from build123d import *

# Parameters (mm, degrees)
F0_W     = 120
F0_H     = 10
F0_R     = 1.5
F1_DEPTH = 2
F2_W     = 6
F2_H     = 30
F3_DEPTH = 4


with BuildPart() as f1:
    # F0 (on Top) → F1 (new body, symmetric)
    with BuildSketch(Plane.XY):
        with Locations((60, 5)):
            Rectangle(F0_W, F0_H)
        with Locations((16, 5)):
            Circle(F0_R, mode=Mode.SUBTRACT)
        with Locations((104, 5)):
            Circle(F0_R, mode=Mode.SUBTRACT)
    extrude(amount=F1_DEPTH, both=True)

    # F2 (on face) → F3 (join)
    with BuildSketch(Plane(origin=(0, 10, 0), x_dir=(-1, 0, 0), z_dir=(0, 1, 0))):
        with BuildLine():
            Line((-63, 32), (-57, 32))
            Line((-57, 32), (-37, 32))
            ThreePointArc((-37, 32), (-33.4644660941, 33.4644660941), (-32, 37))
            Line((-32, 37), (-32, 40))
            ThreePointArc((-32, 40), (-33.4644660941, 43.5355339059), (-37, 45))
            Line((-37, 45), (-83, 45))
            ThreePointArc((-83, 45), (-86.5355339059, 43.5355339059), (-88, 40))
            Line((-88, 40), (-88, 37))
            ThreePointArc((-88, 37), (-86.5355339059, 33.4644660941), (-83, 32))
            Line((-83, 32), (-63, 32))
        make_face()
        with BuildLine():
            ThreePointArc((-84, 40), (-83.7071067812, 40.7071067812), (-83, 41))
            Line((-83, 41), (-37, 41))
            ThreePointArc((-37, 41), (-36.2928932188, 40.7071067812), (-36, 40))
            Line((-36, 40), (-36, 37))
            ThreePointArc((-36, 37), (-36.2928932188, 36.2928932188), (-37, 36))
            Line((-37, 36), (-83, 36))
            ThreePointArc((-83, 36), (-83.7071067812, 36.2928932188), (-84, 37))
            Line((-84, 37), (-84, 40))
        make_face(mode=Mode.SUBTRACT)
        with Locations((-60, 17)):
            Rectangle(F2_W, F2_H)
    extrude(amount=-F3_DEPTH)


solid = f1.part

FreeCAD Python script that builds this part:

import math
import FreeCAD as App
import Part
import Sketcher

V = App.Vector

doc = App.newDocument("Part")
body = doc.addObject("PartDesign::Body", "Body")

# Sketch on XY plane
sketch1 = body.newObject("Sketcher::SketchObject", "Sketch")
sketch1.AttachmentSupport = (doc.getObject("XY_Plane"), [""])
sketch1.MapMode = "FlatFace"
sketch1.addGeometry([
    Part.LineSegment(V(0, 10, 0), V(0, 0, 0)),  # 0
    Part.LineSegment(V(0, 0, 0), V(120, 0, 0)),  # 1
    Part.LineSegment(V(120, 0, 0), V(120, 10, 0)),  # 2
    Part.LineSegment(V(120, 10, 0), V(0, 10, 0)),  # 3
    Part.Circle(V(16, 5, 0), V(0, 0, 1), 1.5),  # 4
    Part.Circle(V(104, 5, 0), V(0, 0, 1), 1.5),  # 5
], False)
sketch1.addConstraint([
    Sketcher.Constraint("Coincident", 0, 2, 1, 1),
    Sketcher.Constraint("Coincident", 1, 2, 2, 1),
    Sketcher.Constraint("Coincident", 2, 2, 3, 1),
    Sketcher.Constraint("Coincident", 3, 2, 0, 1),
    Sketcher.Constraint("Vertical", 0),
    Sketcher.Constraint("Horizontal", 1),
    Sketcher.Constraint("Vertical", 2),
    Sketcher.Constraint("Horizontal", 3),
    Sketcher.Constraint("Coincident", 0, 2, -1, 1),
    Sketcher.Constraint("Equal", 4, 5),
    Sketcher.Constraint("Horizontal", 4, 3, 5, 3),
    Sketcher.Constraint("Diameter", 4, 3.0),
    Sketcher.Constraint("DistanceX", 1, 1, 1, 2, 120.0),
    Sketcher.Constraint("DistanceY", 0, 2, 0, 1, 10.0),
    Sketcher.Constraint("DistanceX", -1, 1, 4, 3, 16.0),
    Sketcher.Constraint("DistanceY", -1, 1, 4, 3, 5.0),
    Sketcher.Constraint("DistanceX", -1, 1, 5, 3, 104.0),
])
pad1 = body.newObject("PartDesign::Pad", "Pad")
pad1.Profile = sketch1
pad1.Length = 4
pad1.Midplane = True

# Sketch on XZ plane
sketch2 = body.newObject("Sketcher::SketchObject", "Sketch001")
sketch2.AttachmentSupport = (doc.getObject("XZ_Plane"), [""])
sketch2.MapMode = "FlatFace"
sketch2.AttachmentOffset = App.Placement(V(0, 0, -10), App.Rotation())
sketch2.addGeometry([
    Part.ArcOfCircle(Part.Circle(V(37, 37, 0), V(0, 0, 1), 5), math.radians(180), math.radians(270)),  # 0
    Part.LineSegment(V(32, 37, 0), V(32, 40, 0)),  # 1
    Part.ArcOfCircle(Part.Circle(V(37, 40, 0), V(0, 0, 1), 5), math.radians(90), math.radians(180)),  # 2
    Part.LineSegment(V(37, 45, 0), V(83, 45, 0)),  # 3
    Part.ArcOfCircle(Part.Circle(V(83, 40, 0), V(0, 0, 1), 5), math.radians(0), math.radians(90)),  # 4
    Part.LineSegment(V(88, 40, 0), V(88, 37, 0)),  # 5
    Part.ArcOfCircle(Part.Circle(V(83, 37, 0), V(0, 0, 1), 5), math.radians(-90), math.radians(0)),  # 6
    Part.LineSegment(V(83, 32, 0), V(63, 32, 0)),  # 7
    Part.LineSegment(V(63, 32, 0), V(63, 2, 0)),  # 8
    Part.LineSegment(V(63, 2, 0), V(57, 2, 0)),  # 9
    Part.LineSegment(V(57, 2, 0), V(57, 32, 0)),  # 10
    Part.LineSegment(V(57, 32, 0), V(37, 32, 0)),  # 11
    Part.LineSegment(V(84, 37, 0), V(84, 40, 0)),  # 12
    Part.ArcOfCircle(Part.Circle(V(83, 40, 0), V(0, 0, 1), 1), math.radians(0), math.radians(90)),  # 13
    Part.LineSegment(V(83, 41, 0), V(37, 41, 0)),  # 14
    Part.ArcOfCircle(Part.Circle(V(37, 40, 0), V(0, 0, 1), 1), math.radians(90), math.radians(180)),  # 15
    Part.LineSegment(V(36, 40, 0), V(36, 37, 0)),  # 16
    Part.ArcOfCircle(Part.Circle(V(37, 37, 0), V(0, 0, 1), 1), math.radians(180), math.radians(270)),  # 17
    Part.LineSegment(V(37, 36, 0), V(83, 36, 0)),  # 18
    Part.ArcOfCircle(Part.Circle(V(83, 37, 0), V(0, 0, 1), 1), math.radians(-90), math.radians(0)),  # 19
], False)
sketch2.addConstraint([
    Sketcher.Constraint("Tangent", 0, 1, 1, 1),
    Sketcher.Constraint("Tangent", 1, 2, 2, 2),
    Sketcher.Constraint("Tangent", 2, 1, 3, 1),
    Sketcher.Constraint("Tangent", 3, 2, 4, 2),
    Sketcher.Constraint("Tangent", 4, 1, 5, 1),
    Sketcher.Constraint("Tangent", 5, 2, 6, 2),
    Sketcher.Constraint("Tangent", 6, 1, 7, 1),
    Sketcher.Constraint("Coincident", 7, 2, 8, 1),
    Sketcher.Constraint("Coincident", 8, 2, 9, 1),
    Sketcher.Constraint("Coincident", 9, 2, 10, 1),
    Sketcher.Constraint("Coincident", 10, 2, 11, 1),
    Sketcher.Constraint("Tangent", 11, 2, 0, 2),
    Sketcher.Constraint("Tangent", 12, 2, 13, 1),
    Sketcher.Constraint("Tangent", 13, 2, 14, 1),
    Sketcher.Constraint("Tangent", 14, 2, 15, 1),
    Sketcher.Constraint("Tangent", 15, 2, 16, 1),
    Sketcher.Constraint("Tangent", 16, 2, 17, 1),
    Sketcher.Constraint("Tangent", 17, 2, 18, 1),
    Sketcher.Constraint("Tangent", 18, 2, 19, 1),
    Sketcher.Constraint("Tangent", 19, 2, 12, 1),
    Sketcher.Constraint("Vertical", 1),
    Sketcher.Constraint("Horizontal", 3),
    Sketcher.Constraint("Vertical", 5),
    Sketcher.Constraint("Horizontal", 7),
    Sketcher.Constraint("Vertical", 8),
    Sketcher.Constraint("Horizontal", 9),
    Sketcher.Constraint("Vertical", 10),
    Sketcher.Constraint("Horizontal", 11),
    Sketcher.Constraint("Vertical", 12),
    Sketcher.Constraint("Horizontal", 14),
    Sketcher.Constraint("Vertical", 16),
    Sketcher.Constraint("Horizontal", 18),
    Sketcher.Constraint("Coincident", 13, 3, 4, 3),
    Sketcher.Constraint("Coincident", 15, 3, 2, 3),
    Sketcher.Constraint("Coincident", 17, 3, 0, 3),
    Sketcher.Constraint("Coincident", 19, 3, 6, 3),
    Sketcher.Constraint("Equal", 0, 2),
    Sketcher.Constraint("Equal", 2, 4),
    Sketcher.Constraint("Equal", 4, 6),
    Sketcher.Constraint("Equal", 7, 11),
    Sketcher.Constraint("Radius", 0, 5.0),
    Sketcher.Constraint("Radius", 13, 1.0),
    Sketcher.Constraint("DistanceX", 3, 1, 3, 2, 46.0),
    Sketcher.Constraint("DistanceX", 7, 2, 7, 1, 20.0),
    Sketcher.Constraint("DistanceY", 1, 1, 1, 2, 3.0),
    Sketcher.Constraint("DistanceY", 8, 2, 8, 1, 30.0),
    Sketcher.Constraint("DistanceX", -1, 1, 0, 3, 37.0),
    Sketcher.Constraint("DistanceY", -1, 1, 0, 3, 37.0),
])
pad2 = body.newObject("PartDesign::Pad", "Pad001")
pad2.Profile = sketch2
pad2.Length = 4

doc.recompute()
